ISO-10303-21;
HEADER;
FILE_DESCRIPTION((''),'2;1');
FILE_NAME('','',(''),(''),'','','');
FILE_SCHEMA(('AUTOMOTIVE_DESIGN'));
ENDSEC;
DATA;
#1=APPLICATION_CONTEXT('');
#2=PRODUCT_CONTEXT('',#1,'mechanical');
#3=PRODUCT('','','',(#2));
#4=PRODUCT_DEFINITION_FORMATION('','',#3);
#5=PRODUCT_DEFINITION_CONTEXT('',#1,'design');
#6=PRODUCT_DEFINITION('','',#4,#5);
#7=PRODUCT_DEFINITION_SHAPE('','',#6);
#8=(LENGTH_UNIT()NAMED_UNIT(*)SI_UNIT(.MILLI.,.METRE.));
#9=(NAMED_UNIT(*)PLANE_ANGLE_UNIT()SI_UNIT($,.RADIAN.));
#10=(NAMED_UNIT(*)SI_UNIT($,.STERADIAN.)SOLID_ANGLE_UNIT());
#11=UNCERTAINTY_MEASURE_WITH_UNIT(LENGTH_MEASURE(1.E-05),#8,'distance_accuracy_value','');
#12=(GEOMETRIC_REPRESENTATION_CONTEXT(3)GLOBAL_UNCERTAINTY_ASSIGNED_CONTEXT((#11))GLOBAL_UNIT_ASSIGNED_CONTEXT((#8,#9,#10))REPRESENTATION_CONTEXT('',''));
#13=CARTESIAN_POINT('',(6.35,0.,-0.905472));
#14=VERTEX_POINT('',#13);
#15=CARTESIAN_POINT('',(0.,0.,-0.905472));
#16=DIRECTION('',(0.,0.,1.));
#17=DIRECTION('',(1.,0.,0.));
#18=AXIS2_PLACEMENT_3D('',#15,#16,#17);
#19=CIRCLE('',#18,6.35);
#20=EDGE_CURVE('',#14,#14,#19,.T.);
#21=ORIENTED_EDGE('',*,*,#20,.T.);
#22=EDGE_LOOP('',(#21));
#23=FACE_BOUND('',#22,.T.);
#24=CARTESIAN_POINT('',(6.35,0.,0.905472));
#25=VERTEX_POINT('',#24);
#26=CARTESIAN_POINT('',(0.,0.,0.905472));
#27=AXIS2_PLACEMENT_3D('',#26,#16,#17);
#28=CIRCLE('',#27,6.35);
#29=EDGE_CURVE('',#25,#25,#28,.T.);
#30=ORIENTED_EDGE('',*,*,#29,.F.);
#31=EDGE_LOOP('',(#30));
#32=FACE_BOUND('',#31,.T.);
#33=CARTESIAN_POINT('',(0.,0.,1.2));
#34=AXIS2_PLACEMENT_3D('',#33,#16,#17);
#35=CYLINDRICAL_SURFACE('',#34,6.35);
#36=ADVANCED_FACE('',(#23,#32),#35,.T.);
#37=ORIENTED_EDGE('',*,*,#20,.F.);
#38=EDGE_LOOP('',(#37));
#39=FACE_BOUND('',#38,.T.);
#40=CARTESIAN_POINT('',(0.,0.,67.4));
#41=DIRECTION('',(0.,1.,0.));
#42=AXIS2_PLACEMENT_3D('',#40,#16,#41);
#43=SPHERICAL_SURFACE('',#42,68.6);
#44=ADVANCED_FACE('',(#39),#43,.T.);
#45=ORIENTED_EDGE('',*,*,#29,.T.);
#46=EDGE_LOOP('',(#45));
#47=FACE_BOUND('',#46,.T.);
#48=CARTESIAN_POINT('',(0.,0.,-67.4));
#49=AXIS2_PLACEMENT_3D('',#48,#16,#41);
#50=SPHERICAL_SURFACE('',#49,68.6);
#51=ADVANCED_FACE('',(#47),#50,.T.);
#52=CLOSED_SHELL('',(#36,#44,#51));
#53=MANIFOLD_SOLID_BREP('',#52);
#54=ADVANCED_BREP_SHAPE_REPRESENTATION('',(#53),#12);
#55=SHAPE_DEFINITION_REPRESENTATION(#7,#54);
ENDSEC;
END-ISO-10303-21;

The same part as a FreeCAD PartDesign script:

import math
import FreeCAD as App
import Part
import Sketcher
Q = App.Units.Quantity

doc = App.newDocument("Part")
body = doc.addObject("PartDesign::Body", "Body")

# Sketch on YZ plane
sketch1 = doc.addObject("Sketcher::SketchObject", "Sketch")
body.addObject(sketch1)
sketch1.AttachmentSupport = (doc.YZ_Plane, [""])
sketch1.MapMode = "FlatFace"
sketch1.addGeometry(Part.LineSegment(App.Vector(0, 1.2, 0), App.Vector(0, -1.2, 0)), False)
sketch1.addGeometry(Part.ArcOfCircle(Part.Circle(App.Vector(0, 67.4, 0), App.Vector(0, 0, 1), 68.6), math.radians(-90), math.radians(-84.69)), False)
sketch1.addGeometry(Part.LineSegment(App.Vector(6.3, -0.9, 0), App.Vector(6.3, 0.9, 0)), False)
sketch1.addGeometry(Part.ArcOfCircle(Part.Circle(App.Vector(0, -67.4, 0), App.Vector(0, 0, 1), 68.6), math.radians(84.69), math.radians(90)), False)
sketch1.addConstraint(Sketcher.Constraint("Coincident", 0, 2, 1, 1))
sketch1.addConstraint(Sketcher.Constraint("Coincident", 1, 2, 2, 1))
sketch1.addConstraint(Sketcher.Constraint("Coincident", 2, 2, 3, 1))
sketch1.addConstraint(Sketcher.Constraint("Coincident", 3, 2, 0, 1))
sketch1.addConstraint(Sketcher.Constraint("Vertical", 0))
sketch1.addConstraint(Sketcher.Constraint("Vertical", 2))
sketch1.addConstraint(Sketcher.Constraint("Equal", 1, 3))
sketch1.addConstraint(Sketcher.Constraint("Symmetric", 1, 3, 3, 3, -1, 1))
sketch1.addConstraint(Sketcher.Constraint("PointOnObject", 1, 3, -2))
sketch1.addConstraint(Sketcher.Constraint("PointOnObject", 0, 2, -2))
sketch1.addConstraint(Sketcher.Constraint("Radius", 1, Q("68.599999 mm")))
sketch1.addConstraint(Sketcher.Constraint("DistanceY", 0, 2, 0, 1, Q("2.4 mm")))
sketch1.addConstraint(Sketcher.Constraint("DistanceX", -1, 1, 1, 2, Q("6.35 mm")))
revolution = doc.addObject("PartDesign::Revolution", "Revolution")
body.addObject(revolution)
revolution.Profile = sketch1
revolution.ReferenceAxis = (sketch1, ["V_Axis"])
revolution.Angle = 360

doc.recompute()
